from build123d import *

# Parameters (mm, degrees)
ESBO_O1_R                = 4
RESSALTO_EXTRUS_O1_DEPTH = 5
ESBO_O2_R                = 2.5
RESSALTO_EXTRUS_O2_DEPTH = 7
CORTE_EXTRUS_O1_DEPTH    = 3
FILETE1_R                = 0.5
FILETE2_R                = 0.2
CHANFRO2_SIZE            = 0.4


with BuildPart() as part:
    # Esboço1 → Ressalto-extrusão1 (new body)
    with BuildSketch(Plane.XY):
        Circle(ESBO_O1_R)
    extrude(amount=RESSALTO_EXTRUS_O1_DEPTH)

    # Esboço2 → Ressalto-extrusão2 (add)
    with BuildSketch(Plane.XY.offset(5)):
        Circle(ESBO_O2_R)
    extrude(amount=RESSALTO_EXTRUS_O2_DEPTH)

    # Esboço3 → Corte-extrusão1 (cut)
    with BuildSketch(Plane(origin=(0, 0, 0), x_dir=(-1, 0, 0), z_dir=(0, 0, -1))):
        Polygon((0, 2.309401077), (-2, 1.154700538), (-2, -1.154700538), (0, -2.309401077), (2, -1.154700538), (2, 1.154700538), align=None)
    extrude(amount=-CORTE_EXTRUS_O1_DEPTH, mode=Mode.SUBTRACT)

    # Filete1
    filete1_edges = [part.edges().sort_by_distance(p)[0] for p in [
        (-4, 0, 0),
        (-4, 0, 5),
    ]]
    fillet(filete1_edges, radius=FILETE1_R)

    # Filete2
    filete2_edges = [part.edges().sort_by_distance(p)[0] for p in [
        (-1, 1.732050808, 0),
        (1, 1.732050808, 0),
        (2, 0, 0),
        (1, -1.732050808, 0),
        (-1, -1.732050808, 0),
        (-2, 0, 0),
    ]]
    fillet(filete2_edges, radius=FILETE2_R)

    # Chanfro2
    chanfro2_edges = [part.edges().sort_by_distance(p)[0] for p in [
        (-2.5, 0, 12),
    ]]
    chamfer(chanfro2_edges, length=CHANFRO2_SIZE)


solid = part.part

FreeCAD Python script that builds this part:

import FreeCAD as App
import Part
import Sketcher
from FreeCAD import Vector
Q = App.Units.Quantity


def edges_at(feature, points):
    """Names of the edges that pass closest to the given points."""
    edges = feature.Shape.Edges
    near = lambda p: min(range(len(edges)), key=lambda i: edges[i].distToShape(Part.Vertex(*p))[0])
    return sorted({f"Edge{near(p) + 1}" for p in points})


def add_polygon(sketch, points):
    """Adds a closed chain of lines whose ends are joined by coincident constraints."""
    first, n = sketch.GeometryCount, len(points)
    for a, b in zip(points, points[1:] + points[:1]):
        sketch.addGeometry(Part.LineSegment(App.Vector(*a, 0), App.Vector(*b, 0)), False)
    for i in range(n):
        sketch.addConstraint(Sketcher.Constraint("Coincident", first + i, 2, first + (i + 1) % n, 1))

doc = App.newDocument("Part")
params = doc.addObject("Spreadsheet::Sheet", "Params")
for row, (alias, value) in enumerate([
    ("sketch1_diameter", "8 mm"),
    ("pad1_length", "5 mm"),
    ("sketch2_diameter", "5 mm"),
    ("pad2_length", "7 mm"),
    ("pocket1_length", "3 mm"),
    ("fillet_radius", "0.5 mm"),
    ("fillet2_radius", "0.2 mm"),
    ("chamfer_size", "0.4 mm"),
], start=1):
    params.set(f"A{row}", alias)
    params.set(f"B{row}", "=" + value)
    params.setAlias(f"B{row}", alias)

body = doc.addObject("PartDesign::Body", "Body")

# Sketch on XY plane
sketch1 = doc.addObject("Sketcher::SketchObject", "Sketch")
body.addObject(sketch1)
sketch1.AttachmentSupport = (doc.XY_Plane, [""])
sketch1.MapMode = "FlatFace"
sketch1.addGeometry(Part.Circle(Vector(0, 0, 0), Vector(0, 0, 1), 4), False)
sketch1.addConstraint([
    Sketcher.Constraint("Coincident", 0, 3, -1, 1),
    Sketcher.Constraint("Diameter", 0, 8.0),
])
sketch1.setExpression("Constraints[1]", "Params.sketch1_diameter")
pad1 = doc.addObject("PartDesign::Pad", "Pad")
body.addObject(pad1)
pad1.Profile = sketch1
pad1.setExpression("Length", "Params.pad1_length")

# Sketch on XY plane
sketch2 = doc.addObject("Sketcher::SketchObject", "Sketch001")
body.addObject(sketch2)
sketch2.AttachmentSupport = (doc.XY_Plane, [""])
sketch2.MapMode = "FlatFace"
sketch2.AttachmentOffset = App.Placement(Vector(0, 0, 5), App.Rotation())
sketch2.addGeometry(Part.Circle(Vector(0, 0, 0), Vector(0, 0, 1), 2.5), False)
sketch2.addConstraint([
    Sketcher.Constraint("Coincident", 0, 3, -1, 1),
    Sketcher.Constraint("Diameter", 0, 5.0),
])
sketch2.setExpression("Constraints[1]", "Params.sketch2_diameter")
pad2 = doc.addObject("PartDesign::Pad", "Pad001")
body.addObject(pad2)
pad2.Profile = sketch2
pad2.setExpression("Length", "Params.pad2_length")

# Sketch on XY plane
sketch3 = doc.addObject("Sketcher::SketchObject", "Sketch002")
body.addObject(sketch3)
sketch3.AttachmentSupport = (doc.XY_Plane, [""])
sketch3.MapMode = "FlatFace"
add_polygon(sketch3, [(0, 2.3), (2, 1.2), (2, -1.2), (0, -2.3), (-2, -1.2), (-2, 1.2)])  # lines 0-5
sketch3.addConstraint([
    Sketcher.Constraint("Vertical", 1),
    Sketcher.Constraint("Vertical", 4),
    Sketcher.Constraint("Symmetric", 0, 2, 3, 2, -1, 1),
    Sketcher.Constraint("Symmetric", 2, 2, 5, 2, -1, 1),
    Sketcher.Constraint("PointOnObject", 2, 2, -2),
    Sketcher.Constraint("Parallel", 2, 5),
    Sketcher.Constraint("Horizontal", 1, 2, 3, 2),
    Sketcher.Constraint("Angle", 0, Q("-30 deg")),
    Sketcher.Constraint("DistanceX", -1, 1, 0, 2, 2.0),
    Sketcher.Constraint("DistanceY", 1, 2, 1, 1, 2.309401),
])
pocket1 = doc.addObject("PartDesign::Pocket", "Pocket")
body.addObject(pocket1)
pocket1.Profile = sketch3
pocket1.setExpression("Length", "Params.pocket1_length")
pocket1.Reversed = True
doc.recompute()

fillet = doc.addObject("PartDesign::Fillet", "Fillet")
body.addObject(fillet)
fillet.Base = (pocket1, edges_at(pocket1, [(-4, 0, 0), (-4, 0, 5)]))
fillet.setExpression("Radius", "Params.fillet_radius")
doc.recompute()

fillet2 = doc.addObject("PartDesign::Fillet", "Fillet001")
body.addObject(fillet2)
fillet2.Base = (fillet, edges_at(fillet, [
    (-1, 1.732, 0),
    (1, 1.732, 0),
    (2, 0, 0),
    (1, -1.732, 0),
    (-1, -1.732, 0),
    (-2, 0, 0),
]))
fillet2.setExpression("Radius", "Params.fillet2_radius")
doc.recompute()

chamfer = doc.addObject("PartDesign::Chamfer", "Chamfer")
body.addObject(chamfer)
chamfer.Base = (fillet2, edges_at(fillet2, [(-2.5, 0, 12)]))
chamfer.setExpression("Size", "Params.chamfer_size")

doc.recompute()
